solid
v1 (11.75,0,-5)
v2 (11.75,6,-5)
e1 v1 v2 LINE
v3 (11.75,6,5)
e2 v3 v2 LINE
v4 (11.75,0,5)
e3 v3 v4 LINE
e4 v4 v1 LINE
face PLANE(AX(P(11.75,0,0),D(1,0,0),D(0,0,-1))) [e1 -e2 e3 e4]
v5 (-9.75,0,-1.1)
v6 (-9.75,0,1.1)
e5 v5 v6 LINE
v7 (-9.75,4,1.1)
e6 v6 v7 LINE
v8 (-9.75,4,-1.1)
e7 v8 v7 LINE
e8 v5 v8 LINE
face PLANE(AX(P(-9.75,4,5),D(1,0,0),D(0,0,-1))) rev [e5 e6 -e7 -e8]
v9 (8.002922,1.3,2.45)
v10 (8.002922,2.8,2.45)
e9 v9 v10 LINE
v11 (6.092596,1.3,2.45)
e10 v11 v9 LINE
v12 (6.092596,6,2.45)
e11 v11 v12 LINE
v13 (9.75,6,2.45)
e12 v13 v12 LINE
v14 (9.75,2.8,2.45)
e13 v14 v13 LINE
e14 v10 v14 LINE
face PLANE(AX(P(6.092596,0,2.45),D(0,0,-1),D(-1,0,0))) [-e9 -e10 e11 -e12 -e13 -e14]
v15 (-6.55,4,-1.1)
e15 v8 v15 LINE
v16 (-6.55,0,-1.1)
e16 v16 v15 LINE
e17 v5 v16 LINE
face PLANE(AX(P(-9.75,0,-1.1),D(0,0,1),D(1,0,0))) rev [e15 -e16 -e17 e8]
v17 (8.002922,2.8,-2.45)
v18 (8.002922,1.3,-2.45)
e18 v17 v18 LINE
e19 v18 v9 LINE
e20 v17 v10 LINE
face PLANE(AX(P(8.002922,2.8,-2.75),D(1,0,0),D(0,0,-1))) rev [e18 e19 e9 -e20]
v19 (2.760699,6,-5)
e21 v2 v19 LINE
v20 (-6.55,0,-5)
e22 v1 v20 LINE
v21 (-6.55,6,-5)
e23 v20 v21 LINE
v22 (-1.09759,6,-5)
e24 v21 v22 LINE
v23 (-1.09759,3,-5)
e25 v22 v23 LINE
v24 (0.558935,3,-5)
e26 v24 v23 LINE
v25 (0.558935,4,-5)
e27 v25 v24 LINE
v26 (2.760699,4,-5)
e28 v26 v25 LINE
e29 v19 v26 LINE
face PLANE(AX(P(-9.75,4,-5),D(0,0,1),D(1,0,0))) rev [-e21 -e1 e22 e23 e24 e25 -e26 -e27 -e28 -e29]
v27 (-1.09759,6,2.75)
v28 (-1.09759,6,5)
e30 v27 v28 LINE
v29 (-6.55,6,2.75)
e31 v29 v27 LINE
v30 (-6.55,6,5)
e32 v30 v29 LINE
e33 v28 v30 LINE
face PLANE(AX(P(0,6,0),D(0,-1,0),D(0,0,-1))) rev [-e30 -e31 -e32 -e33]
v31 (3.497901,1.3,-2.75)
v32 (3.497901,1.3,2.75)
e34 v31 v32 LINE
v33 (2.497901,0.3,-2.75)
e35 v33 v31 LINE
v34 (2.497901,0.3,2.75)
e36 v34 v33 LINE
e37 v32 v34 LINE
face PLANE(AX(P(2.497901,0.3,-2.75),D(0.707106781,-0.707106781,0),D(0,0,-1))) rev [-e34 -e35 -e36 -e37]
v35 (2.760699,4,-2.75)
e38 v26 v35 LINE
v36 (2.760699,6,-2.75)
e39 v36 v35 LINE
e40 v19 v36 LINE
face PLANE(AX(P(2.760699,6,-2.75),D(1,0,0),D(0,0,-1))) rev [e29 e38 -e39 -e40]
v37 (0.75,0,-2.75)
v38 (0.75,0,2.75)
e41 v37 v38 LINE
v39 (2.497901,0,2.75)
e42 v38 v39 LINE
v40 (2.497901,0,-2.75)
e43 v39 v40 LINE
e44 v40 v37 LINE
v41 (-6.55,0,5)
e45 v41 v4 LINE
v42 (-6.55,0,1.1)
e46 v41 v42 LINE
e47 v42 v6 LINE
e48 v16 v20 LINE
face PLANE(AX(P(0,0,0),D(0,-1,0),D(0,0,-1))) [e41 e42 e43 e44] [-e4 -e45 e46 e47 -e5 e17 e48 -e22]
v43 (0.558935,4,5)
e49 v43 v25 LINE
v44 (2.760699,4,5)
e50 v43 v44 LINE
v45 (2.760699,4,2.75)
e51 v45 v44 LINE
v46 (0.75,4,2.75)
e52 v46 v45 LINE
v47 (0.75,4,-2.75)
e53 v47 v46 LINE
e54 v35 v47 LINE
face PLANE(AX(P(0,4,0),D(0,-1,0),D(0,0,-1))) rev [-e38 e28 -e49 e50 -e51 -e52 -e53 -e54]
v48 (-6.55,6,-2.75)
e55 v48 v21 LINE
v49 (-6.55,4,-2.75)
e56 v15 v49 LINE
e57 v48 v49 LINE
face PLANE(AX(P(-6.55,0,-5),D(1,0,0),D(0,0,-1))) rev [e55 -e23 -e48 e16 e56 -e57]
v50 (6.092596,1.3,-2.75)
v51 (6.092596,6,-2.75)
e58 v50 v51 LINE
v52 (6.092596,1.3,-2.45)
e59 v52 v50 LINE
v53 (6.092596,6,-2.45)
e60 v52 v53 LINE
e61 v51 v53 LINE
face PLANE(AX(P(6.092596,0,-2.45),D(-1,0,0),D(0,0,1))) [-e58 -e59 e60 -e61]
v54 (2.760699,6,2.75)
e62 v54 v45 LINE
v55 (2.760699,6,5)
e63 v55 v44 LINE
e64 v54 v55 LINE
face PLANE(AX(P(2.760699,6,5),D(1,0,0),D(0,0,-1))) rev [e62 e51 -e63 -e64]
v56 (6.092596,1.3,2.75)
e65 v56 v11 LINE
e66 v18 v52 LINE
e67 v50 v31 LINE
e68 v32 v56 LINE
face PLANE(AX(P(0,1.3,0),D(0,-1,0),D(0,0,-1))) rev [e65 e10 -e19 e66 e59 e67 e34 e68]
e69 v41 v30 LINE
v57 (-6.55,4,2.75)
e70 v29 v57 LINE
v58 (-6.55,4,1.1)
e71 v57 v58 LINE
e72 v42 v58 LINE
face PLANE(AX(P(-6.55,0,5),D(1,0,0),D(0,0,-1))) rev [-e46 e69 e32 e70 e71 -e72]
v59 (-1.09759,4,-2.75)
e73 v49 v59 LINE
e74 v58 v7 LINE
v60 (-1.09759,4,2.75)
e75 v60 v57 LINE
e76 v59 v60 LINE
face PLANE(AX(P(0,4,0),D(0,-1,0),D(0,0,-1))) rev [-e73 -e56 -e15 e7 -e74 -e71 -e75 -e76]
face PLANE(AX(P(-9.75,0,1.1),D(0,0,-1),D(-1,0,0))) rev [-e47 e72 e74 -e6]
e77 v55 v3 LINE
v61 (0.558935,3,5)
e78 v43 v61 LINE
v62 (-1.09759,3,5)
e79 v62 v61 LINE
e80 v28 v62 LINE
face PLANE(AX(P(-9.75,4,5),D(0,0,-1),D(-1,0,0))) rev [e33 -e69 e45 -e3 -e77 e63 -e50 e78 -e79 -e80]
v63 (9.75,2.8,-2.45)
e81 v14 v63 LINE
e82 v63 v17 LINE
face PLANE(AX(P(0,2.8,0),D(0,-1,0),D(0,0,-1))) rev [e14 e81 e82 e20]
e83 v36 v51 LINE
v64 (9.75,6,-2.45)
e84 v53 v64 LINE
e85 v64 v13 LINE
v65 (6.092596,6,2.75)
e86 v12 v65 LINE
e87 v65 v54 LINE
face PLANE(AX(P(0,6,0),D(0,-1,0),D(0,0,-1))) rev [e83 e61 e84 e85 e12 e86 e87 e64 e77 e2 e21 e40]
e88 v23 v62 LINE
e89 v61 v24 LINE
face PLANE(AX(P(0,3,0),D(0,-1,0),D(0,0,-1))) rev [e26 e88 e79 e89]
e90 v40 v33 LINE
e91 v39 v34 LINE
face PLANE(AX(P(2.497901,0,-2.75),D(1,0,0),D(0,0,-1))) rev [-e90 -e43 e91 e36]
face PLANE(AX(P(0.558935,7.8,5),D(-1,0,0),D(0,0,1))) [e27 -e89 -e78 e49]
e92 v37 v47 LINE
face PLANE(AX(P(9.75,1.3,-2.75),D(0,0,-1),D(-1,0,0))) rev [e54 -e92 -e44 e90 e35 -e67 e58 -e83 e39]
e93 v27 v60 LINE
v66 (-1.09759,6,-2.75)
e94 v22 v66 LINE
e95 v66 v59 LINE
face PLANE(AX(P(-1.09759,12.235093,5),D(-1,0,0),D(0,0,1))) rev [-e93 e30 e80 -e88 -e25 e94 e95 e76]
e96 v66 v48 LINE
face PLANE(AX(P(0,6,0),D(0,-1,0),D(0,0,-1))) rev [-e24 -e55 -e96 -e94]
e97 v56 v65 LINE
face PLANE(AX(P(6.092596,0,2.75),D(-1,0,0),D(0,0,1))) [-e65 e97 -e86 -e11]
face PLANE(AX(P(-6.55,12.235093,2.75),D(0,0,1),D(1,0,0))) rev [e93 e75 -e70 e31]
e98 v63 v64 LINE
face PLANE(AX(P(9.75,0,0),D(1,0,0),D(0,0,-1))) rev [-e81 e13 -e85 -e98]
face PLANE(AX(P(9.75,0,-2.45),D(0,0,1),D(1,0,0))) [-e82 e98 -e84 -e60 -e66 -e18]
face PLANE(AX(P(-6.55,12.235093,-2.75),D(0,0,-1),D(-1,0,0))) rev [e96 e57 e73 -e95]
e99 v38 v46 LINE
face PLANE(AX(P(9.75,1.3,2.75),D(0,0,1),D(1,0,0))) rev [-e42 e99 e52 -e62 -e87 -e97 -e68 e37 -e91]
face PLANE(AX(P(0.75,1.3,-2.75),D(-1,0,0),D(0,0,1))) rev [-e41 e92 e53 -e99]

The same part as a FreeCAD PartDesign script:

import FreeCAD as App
import Part
import Sketcher


def edges_at(feature, points):
    """Names of the edges that pass closest to the given points."""
    edges = feature.Shape.Edges
    near = lambda p: min(range(len(edges)), key=lambda i: edges[i].distToShape(Part.Vertex(*p))[0])
    return sorted({f"Edge{near(p) + 1}" for p in points})


def add_polygon(sketch, points):
    """Adds a closed chain of lines whose ends are joined by coincident constraints."""
    first, n = sketch.GeometryCount, len(points)
    for a, b in zip(points, points[1:] + points[:1]):
        sketch.addGeometry(Part.LineSegment(App.Vector(*a, 0), App.Vector(*b, 0)), False)
    for i in range(n):
        sketch.addConstraint(Sketcher.Constraint("Coincident", first + i, 2, first + (i + 1) % n, 1))

doc = App.newDocument("Part")
body = doc.addObject("PartDesign::Body", "Body")

sketch1 = doc.addObject("Sketcher::SketchObject", "Sketch")
body.addObject(sketch1)
sketch1.AttachmentSupport = (doc.XZ_Plane, [""])
sketch1.MapMode = "FlatFace"
add_polygon(sketch1, [(-9.75, -5), (-9.75, 5), (9.75, 5), (9.75, -5)])
sketch1.addConstraint([
    Sketcher.Constraint("Vertical", 0),
    Sketcher.Constraint("Horizontal", 1),
    Sketcher.Constraint("Vertical", 2),
    Sketcher.Constraint("Horizontal", 3),
    Sketcher.Constraint("Symmetric", 0, 2, 2, 2, -1, 1),
    Sketcher.Constraint("DistanceY", 0, 1, 0, 2, 10.0),
    Sketcher.Constraint("DistanceX", 1, 1, 1, 2, 19.5),
])
pad1 = doc.addObject("PartDesign::Pad", "Pad")
body.addObject(pad1)
pad1.Profile = sketch1
pad1.Length = 4
pad1.Reversed = True

sketch2 = doc.addObject("Sketcher::SketchObject", "Sketch001")
body.addObject(sketch2)
sketch2.AttachmentSupport = (doc.XZ_Plane, [""])
sketch2.MapMode = "FlatFace"
sketch2.AttachmentOffset = App.Placement(App.Vector(0, 0, -4), App.Rotation())
add_polygon(sketch2, [(0.75, -2.75), (0.75, 2.75), (9.75, 2.75), (9.75, -2.75)])
sketch2.addConstraint([
    Sketcher.Constraint("Vertical", 0),
    Sketcher.Constraint("Horizontal", 1),
    Sketcher.Constraint("Vertical", 2),
    Sketcher.Constraint("Horizontal", 3),
    Sketcher.Constraint("DistanceX", 1, 1, 1, 2, 9.0),
    Sketcher.Constraint("DistanceY", 0, 1, 0, 2, 5.5),
    Sketcher.Constraint("DistanceX", -1, 1, 0, 2, 0.75),
    Sketcher.Constraint("DistanceY", -1, 1, 0, 2, 2.75),
])
pocket1 = doc.addObject("PartDesign::Pocket", "Pocket")
body.addObject(pocket1)
pocket1.Profile = sketch2
pocket1.Length = 2.7
pocket1.Reversed = True

sketch3 = doc.addObject("Sketcher::SketchObject", "Sketch002")
body.addObject(sketch3)
sketch3.AttachmentSupport = (doc.XZ_Plane, [""])
sketch3.MapMode = "FlatFace"
sketch3.AttachmentOffset = App.Placement(App.Vector(0, 0, -4), App.Rotation())
add_polygon(sketch3, [(-9.75, -5), (-9.75, -1.1), (-6.55, -1.1), (-6.55, -5)])
add_polygon(sketch3, [(-9.75, 1.1), (-9.75, 5), (-6.55, 5), (-6.55, 1.1)])
sketch3.addConstraint([
    Sketcher.Constraint("Vertical", 0),
    Sketcher.Constraint("Horizontal", 1),
    Sketcher.Constraint("Vertical", 2),
    Sketcher.Constraint("Horizontal", 3),
    Sketcher.Constraint("Vertical", 4),
    Sketcher.Constraint("Horizontal", 5),
    Sketcher.Constraint("Vertical", 6),
    Sketcher.Constraint("Horizontal", 7),
    Sketcher.Constraint("Symmetric", 3, 2, 4, 2, -1),
    Sketcher.Constraint("Symmetric", 1, 2, 6, 2, -1),
    Sketcher.Constraint("DistanceX", 1, 1, 1, 2, 3.2),
    Sketcher.Constraint("DistanceY", 0, 1, 0, 2, 3.9),
    Sketcher.Constraint("DistanceY", 2, 2, -1, 1, 5.0),
    Sketcher.Constraint("DistanceX", 0, 2, -1, 1, 9.75),
])
pocket2 = doc.addObject("PartDesign::Pocket", "Pocket001")
body.addObject(pocket2)
pocket2.Profile = sketch3
pocket2.Type = "ThroughAll"
pocket2.Reversed = True

sketch4 = doc.addObject("Sketcher::SketchObject", "Sketch003")
body.addObject(sketch4)
sketch4.AttachmentSupport = (doc.XZ_Plane, [""])
sketch4.MapMode = "FlatFace"
sketch4.AttachmentOffset = App.Placement(App.Vector(0, 0, -1.3), App.Rotation())
add_polygon(sketch4, [(0.75, -2.75), (0.75, 2.75), (2.497901, 2.75), (2.497901, -2.75)])
sketch4.addConstraint([
    Sketcher.Constraint("Vertical", 0),
    Sketcher.Constraint("Horizontal", 1),
    Sketcher.Constraint("Vertical", 2),
    Sketcher.Constraint("Horizontal", 3),
    Sketcher.Constraint("DistanceY", 0, 1, 0, 2, 5.5),
    Sketcher.Constraint("DistanceX", -1, 1, 0, 2, 0.75),
    Sketcher.Constraint("DistanceY", -1, 1, 0, 2, 2.75),
    Sketcher.Constraint("DistanceX", 1, 1, 1, 2, 1.747901),
])
pocket3 = doc.addObject("PartDesign::Pocket", "Pocket002")
body.addObject(pocket3)
pocket3.Profile = sketch4
pocket3.Type = "ThroughAll"
pocket3.Reversed = True
doc.recompute()

chamfer = doc.addObject("PartDesign::Chamfer", "Chamfer")
body.addObject(chamfer)
chamfer.Base = (pocket3, edges_at(pocket3, [(2.498, 1.3, 0)]))
chamfer.Size = 1

sketch5 = doc.addObject("Sketcher::SketchObject", "Sketch004")
body.addObject(sketch5)
sketch5.AttachmentSupport = (doc.YZ_Plane, [""])
sketch5.MapMode = "FlatFace"
sketch5.AttachmentOffset = App.Placement(App.Vector(0, 0, 9.75), App.Rotation())
add_polygon(sketch5, [(4, 5), (0, 5), (0, -5), (4, -5)])
sketch5.addConstraint([
    Sketcher.Constraint("Horizontal", 0),
    Sketcher.Constraint("Vertical", 1),
    Sketcher.Constraint("Horizontal", 2),
    Sketcher.Constraint("Vertical", 3),
    Sketcher.Constraint("Symmetric", 0, 2, 1, 2, -1, 1),
    Sketcher.Constraint("DistanceX", 0, 2, 0, 1, 4.0),
    Sketcher.Constraint("DistanceY", 1, 2, 1, 1, 10.0),
])
pad2 = doc.addObject("PartDesign::Pad", "Pad001")
body.addObject(pad2)
pad2.Profile = sketch5
pad2.Length = 2

sketch6 = doc.addObject("Sketcher::SketchObject", "Sketch005")
body.addObject(sketch6)
sketch6.AttachmentSupport = (doc.XZ_Plane, [""])
sketch6.MapMode = "FlatFace"
sketch6.AttachmentOffset = App.Placement(App.Vector(0, 0, -1.3), App.Rotation())
add_polygon(sketch6, [(8.002922, -2.75), (8.002922, 2.75), (9.75, 2.75), (9.75, -2.75)])
sketch6.addConstraint([
    Sketcher.Constraint("Vertical", 0),
    Sketcher.Constraint("Horizontal", 1),
    Sketcher.Constraint("Vertical", 2),
    Sketcher.Constraint("Horizontal", 3),
    Sketcher.Constraint("DistanceY", 0, 1, 0, 2, 5.5),
    Sketcher.Constraint("DistanceY", -1, 1, 0, 2, 2.75),
    Sketcher.Constraint("DistanceX", -1, 1, 1, 2, 9.75),
    Sketcher.Constraint("DistanceX", 1, 1, 1, 2, 1.747078),
])
pad3 = doc.addObject("PartDesign::Pad", "Pad002")
body.addObject(pad3)
pad3.Profile = sketch6
pad3.Length = 1.5
pad3.Reversed = True

sketch7 = doc.addObject("Sketcher::SketchObject", "Sketch006")
body.addObject(sketch7)
sketch7.AttachmentSupport = (doc.XZ_Plane, [""])
sketch7.MapMode = "FlatFace"
sketch7.AttachmentOffset = App.Placement(App.Vector(0, 0, -4), App.Rotation())
add_polygon(sketch7, [(2.760699, -5), (2.760699, -2.75), (9.75, -2.75), (9.75, 2.75), (2.760699, 2.75), (2.760699, 5), (11.75, 5), (11.75, -5)])
sketch7.addConstraint([
    Sketcher.Constraint("Vertical", 0),
    Sketcher.Constraint("Horizontal", 1),
    Sketcher.Constraint("Vertical", 2),
    Sketcher.Constraint("Horizontal", 3),
    Sketcher.Constraint("Vertical", 4),
    Sketcher.Constraint("Horizontal", 5),
    Sketcher.Constraint("Vertical", 6),
    Sketcher.Constraint("Horizontal", 7),
    Sketcher.Constraint("Symmetric", 0, 2, 3, 2, -1),
    Sketcher.Constraint("Equal", 0, 4),
    Sketcher.Constraint("DistanceY", 6, 2, 6, 1, 10.0),
    Sketcher.Constraint("DistanceY", 2, 1, 2, 2, 5.5),
    Sketcher.Constraint("DistanceX", 2, 2, 5, 2, 2.0),
    Sketcher.Constraint("DistanceX", -1, 1, 1, 2, 9.75),
    Sketcher.Constraint("DistanceX", 1, 1, 1, 2, 6.989301),
])
pad4 = doc.addObject("PartDesign::Pad", "Pad003")
body.addObject(pad4)
pad4.Profile = sketch7
pad4.Length = 2
pad4.Reversed = True

sketch8 = doc.addObject("Sketcher::SketchObject", "Sketch007")
body.addObject(sketch8)
sketch8.AttachmentSupport = (doc.XZ_Plane, [""])
sketch8.MapMode = "FlatFace"
sketch8.AttachmentOffset = App.Placement(App.Vector(0, 0, -6), App.Rotation())
add_polygon(sketch8, [(6.092596, -2.75), (6.092596, -2.45), (9.75, -2.45), (9.75, -2.75)])
sketch8.addConstraint([
    Sketcher.Constraint("Vertical", 0),
    Sketcher.Constraint("Horizontal", 1),
    Sketcher.Constraint("Vertical", 2),
    Sketcher.Constraint("Horizontal", 3),
    Sketcher.Constraint("DistanceY", 0, 1, 0, 2, 0.3),
    Sketcher.Constraint("DistanceY", 0, 2, -1, 1, 2.45),
    Sketcher.Constraint("DistanceX", -1, 1, 1, 2, 9.75),
    Sketcher.Constraint("DistanceX", 1, 1, 1, 2, 3.657404),
])
pad5 = doc.addObject("PartDesign::Pad", "Pad004")
body.addObject(pad5)
pad5.Profile = sketch8
pad5.Type = "UpToFirst"

sketch9 = doc.addObject("Sketcher::SketchObject", "Sketch008")
body.addObject(sketch9)
sketch9.AttachmentSupport = (doc.XZ_Plane, [""])
sketch9.MapMode = "FlatFace"
sketch9.AttachmentOffset = App.Placement(App.Vector(0, 0, -6), App.Rotation())
add_polygon(sketch9, [(6.092596, 2.45), (6.092596, 2.75), (9.75, 2.75), (9.75, 2.45)])
sketch9.addConstraint([
    Sketcher.Constraint("Vertical", 0),
    Sketcher.Constraint("Horizontal", 1),
    Sketcher.Constraint("Vertical", 2),
    Sketcher.Constraint("Horizontal", 3),
    Sketcher.Constraint("DistanceY", 0, 1, 0, 2, 0.3),
    Sketcher.Constraint("DistanceY", -1, 1, 0, 2, 2.75),
    Sketcher.Constraint("DistanceX", -1, 1, 1, 2, 9.75),
    Sketcher.Constraint("DistanceX", 1, 1, 1, 2, 3.657404),
])
pad6 = doc.addObject("PartDesign::Pad", "Pad005")
body.addObject(pad6)
pad6.Profile = sketch9
pad6.Type = "UpToFirst"

sketch10 = doc.addObject("Sketcher::SketchObject", "Sketch009")
body.addObject(sketch10)
sketch10.AttachmentSupport = (doc.XZ_Plane, [""])
sketch10.MapMode = "FlatFace"
sketch10.AttachmentOffset = App.Placement(App.Vector(0, 0, -4), App.Rotation())
add_polygon(sketch10, [(-6.55, -5), (-6.55, -2.75), (-0.735029, -2.75), (-0.735029, -5)])
add_polygon(sketch10, [(-6.55, 2.75), (-6.55, 5), (-1.09759, 5), (-1.09759, 2.75)])
sketch10.addConstraint([
    Sketcher.Constraint("Vertical", 0),
    Sketcher.Constraint("Horizontal", 1),
    Sketcher.Constraint("Vertical", 2),
    Sketcher.Constraint("Horizontal", 3),
    Sketcher.Constraint("Vertical", 4),
    Sketcher.Constraint("Horizontal", 5),
    Sketcher.Constraint("Vertical", 6),
    Sketcher.Constraint("Horizontal", 7),
    Sketcher.Constraint("Symmetric", 3, 2, 4, 2, -1),
    Sketcher.Constraint("Equal", 2, 4),
    Sketcher.Constraint("DistanceY", 2, 2, -1, 1, 5.0),
    Sketcher.Constraint("DistanceY", 0, 1, 0, 2, 2.25),
    Sketcher.Constraint("DistanceX", 0, 2, -1, 1, 6.55),
    Sketcher.Constraint("DistanceX", 1, 1, 1, 2, 5.814971),
    Sketcher.Constraint("DistanceX", 5, 1, 5, 2, 5.45241),
])
pad7 = doc.addObject("PartDesign::Pad", "Pad006")
body.addObject(pad7)
pad7.Profile = sketch10
pad7.Length = 2
pad7.Reversed = True

sketch11 = doc.addObject("Sketcher::SketchObject", "Sketch010")
body.addObject(sketch11)
sketch11.AttachmentSupport = (doc.XZ_Plane, [""])
sketch11.MapMode = "FlatFace"
sketch11.AttachmentOffset = App.Placement(App.Vector(0, 0, -4), App.Rotation())
add_polygon(sketch11, [(-1.09759, -5), (-1.09759, 5), (0.558935, 5), (0.558935, -5)])
sketch11.addConstraint([
    Sketcher.Constraint("Vertical", 0),
    Sketcher.Constraint("Horizontal", 1),
    Sketcher.Constraint("Vertical", 2),
    Sketcher.Constraint("Horizontal", 3),
    Sketcher.Constraint("DistanceY", 0, 1, 0, 2, 10.0),
    Sketcher.Constraint("DistanceY", -1, 1, 0, 2, 5.0),
    Sketcher.Constraint("DistanceX", 1, 1, 1, 2, 1.656525),
    Sketcher.Constraint("DistanceX", 0, 2, -1, 1, 1.09759),
])
pocket4 = doc.addObject("PartDesign::Pocket", "Pocket003")
body.addObject(pocket4)
pocket4.Profile = sketch11
pocket4.Type = "TwoLengths"
pocket4.Length = 3.8
pocket4.Length2 = 1

doc.recompute()
